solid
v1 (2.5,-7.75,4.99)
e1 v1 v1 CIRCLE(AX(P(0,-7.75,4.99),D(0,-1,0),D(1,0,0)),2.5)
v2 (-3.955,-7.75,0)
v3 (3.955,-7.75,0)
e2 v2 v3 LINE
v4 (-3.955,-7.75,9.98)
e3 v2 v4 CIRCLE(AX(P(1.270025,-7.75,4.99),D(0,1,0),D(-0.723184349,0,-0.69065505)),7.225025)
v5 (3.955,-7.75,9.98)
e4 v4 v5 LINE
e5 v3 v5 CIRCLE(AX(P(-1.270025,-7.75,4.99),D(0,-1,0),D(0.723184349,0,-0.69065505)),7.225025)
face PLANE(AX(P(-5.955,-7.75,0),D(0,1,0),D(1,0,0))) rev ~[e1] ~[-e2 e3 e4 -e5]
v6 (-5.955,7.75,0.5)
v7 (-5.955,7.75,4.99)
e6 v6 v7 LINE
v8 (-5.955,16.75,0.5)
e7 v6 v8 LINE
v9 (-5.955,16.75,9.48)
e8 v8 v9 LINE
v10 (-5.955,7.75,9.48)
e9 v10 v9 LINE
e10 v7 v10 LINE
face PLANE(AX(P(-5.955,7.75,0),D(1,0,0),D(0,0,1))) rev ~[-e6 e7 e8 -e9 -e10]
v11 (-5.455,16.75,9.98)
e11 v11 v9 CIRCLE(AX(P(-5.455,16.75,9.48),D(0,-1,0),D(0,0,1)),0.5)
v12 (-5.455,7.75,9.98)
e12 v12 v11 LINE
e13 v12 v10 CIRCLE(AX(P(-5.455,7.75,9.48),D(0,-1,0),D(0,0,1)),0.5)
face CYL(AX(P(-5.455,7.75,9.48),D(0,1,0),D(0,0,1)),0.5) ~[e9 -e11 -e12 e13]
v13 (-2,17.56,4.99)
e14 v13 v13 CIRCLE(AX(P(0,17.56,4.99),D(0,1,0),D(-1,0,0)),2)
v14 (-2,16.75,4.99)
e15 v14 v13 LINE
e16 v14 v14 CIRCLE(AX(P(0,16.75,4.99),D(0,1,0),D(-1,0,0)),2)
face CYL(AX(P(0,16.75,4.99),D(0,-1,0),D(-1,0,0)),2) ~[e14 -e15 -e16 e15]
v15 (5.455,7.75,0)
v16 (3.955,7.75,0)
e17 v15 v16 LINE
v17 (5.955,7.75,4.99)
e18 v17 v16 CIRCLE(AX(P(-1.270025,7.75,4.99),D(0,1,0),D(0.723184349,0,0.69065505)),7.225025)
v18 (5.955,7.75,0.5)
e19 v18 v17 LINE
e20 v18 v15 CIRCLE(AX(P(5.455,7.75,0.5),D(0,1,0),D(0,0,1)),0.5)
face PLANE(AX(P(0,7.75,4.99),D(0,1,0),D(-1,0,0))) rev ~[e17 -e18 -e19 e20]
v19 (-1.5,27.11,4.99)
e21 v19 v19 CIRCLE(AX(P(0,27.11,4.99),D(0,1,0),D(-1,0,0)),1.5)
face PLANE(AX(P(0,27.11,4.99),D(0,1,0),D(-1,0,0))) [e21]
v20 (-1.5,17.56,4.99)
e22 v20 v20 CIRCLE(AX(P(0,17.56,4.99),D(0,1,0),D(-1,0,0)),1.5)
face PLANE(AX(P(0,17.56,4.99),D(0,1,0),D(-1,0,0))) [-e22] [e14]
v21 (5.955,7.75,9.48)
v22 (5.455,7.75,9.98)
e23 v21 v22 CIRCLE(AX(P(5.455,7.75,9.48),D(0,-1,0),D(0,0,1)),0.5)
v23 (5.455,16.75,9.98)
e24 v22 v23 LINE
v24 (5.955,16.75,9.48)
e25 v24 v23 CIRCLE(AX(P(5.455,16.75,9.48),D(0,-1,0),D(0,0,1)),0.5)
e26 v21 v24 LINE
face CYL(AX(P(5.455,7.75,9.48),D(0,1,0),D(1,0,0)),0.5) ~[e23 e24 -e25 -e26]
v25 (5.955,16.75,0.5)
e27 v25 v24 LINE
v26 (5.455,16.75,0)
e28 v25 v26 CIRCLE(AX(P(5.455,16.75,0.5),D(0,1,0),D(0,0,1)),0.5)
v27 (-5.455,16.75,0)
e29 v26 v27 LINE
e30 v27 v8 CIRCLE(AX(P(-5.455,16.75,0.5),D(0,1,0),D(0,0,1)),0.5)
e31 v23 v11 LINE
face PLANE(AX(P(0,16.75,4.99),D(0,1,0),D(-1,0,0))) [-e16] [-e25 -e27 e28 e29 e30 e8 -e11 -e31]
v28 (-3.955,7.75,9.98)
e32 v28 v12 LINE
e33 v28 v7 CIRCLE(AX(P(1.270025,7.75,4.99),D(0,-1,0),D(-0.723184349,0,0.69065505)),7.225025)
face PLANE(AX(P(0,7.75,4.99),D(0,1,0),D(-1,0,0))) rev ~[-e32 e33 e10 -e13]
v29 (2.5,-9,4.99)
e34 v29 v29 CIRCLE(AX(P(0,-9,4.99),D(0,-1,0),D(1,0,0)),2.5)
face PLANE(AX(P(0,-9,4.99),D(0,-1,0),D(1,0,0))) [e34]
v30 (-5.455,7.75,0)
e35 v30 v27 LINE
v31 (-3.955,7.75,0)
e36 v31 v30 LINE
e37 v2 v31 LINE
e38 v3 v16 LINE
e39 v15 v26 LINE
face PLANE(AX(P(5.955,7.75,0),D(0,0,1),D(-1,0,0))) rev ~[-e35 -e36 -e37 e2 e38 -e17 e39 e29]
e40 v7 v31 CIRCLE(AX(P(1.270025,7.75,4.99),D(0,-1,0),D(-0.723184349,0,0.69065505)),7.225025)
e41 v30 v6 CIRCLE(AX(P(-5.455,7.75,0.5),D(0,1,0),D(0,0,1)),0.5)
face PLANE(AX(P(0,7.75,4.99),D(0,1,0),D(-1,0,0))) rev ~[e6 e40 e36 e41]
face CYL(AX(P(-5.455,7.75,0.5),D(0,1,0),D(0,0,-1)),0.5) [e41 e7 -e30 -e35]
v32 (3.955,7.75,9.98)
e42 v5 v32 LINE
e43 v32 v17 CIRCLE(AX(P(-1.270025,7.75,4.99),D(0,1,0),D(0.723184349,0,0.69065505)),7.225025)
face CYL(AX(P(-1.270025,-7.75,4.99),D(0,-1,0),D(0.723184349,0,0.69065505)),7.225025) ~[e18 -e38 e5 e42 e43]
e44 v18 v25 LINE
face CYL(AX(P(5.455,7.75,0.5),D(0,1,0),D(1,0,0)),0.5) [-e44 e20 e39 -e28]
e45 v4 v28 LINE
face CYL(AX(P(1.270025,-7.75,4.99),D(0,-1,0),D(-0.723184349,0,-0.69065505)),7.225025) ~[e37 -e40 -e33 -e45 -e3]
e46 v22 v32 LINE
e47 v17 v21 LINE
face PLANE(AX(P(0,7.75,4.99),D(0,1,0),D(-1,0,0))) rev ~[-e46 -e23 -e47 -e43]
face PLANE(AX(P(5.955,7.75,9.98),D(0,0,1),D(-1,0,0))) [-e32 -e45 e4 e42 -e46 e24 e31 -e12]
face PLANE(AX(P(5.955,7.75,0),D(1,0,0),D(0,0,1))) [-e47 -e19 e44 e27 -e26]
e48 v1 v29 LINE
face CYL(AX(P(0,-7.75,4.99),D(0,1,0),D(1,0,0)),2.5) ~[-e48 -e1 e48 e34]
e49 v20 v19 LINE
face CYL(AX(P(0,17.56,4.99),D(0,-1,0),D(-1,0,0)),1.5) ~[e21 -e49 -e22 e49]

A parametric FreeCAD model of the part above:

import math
import FreeCAD as App
import Part
import Sketcher
Q = App.Units.Quantity


def edges_at(feature, points):
    """Names of the edges that pass closest to the given points."""
    edges = feature.Shape.Edges
    near = lambda p: min(range(len(edges)), key=lambda i: edges[i].distToShape(Part.Vertex(*p))[0])
    return sorted({f"Edge{near(p) + 1}" for p in points})


def add_polygon(sketch, points):
    """Adds a closed chain of lines whose ends are joined by coincident constraints."""
    first, n = sketch.GeometryCount, len(points)
    for a, b in zip(points, points[1:] + points[:1]):
        sketch.addGeometry(Part.LineSegment(App.Vector(*a, 0), App.Vector(*b, 0)), False)
    for i in range(n):
        sketch.addConstraint(Sketcher.Constraint("Coincident", first + i, 2, first + (i + 1) % n, 1))

doc = App.newDocument("Part")
params = doc.addObject("Spreadsheet::Sheet", "Params")
for row, (alias, value) in enumerate([
    ("sketch1_height", "15.5 mm"),
    ("sketch1_width", "11.91 mm"),
    ("pad1_length", "9.98 mm"),
    ("sketch2_height", "9.98 mm"),
    ("pocket1_length", "25.4 mm"),
    ("sketch3_diameter", "5 mm"),
    ("pad2_length", "1.25 mm"),
    ("sketch4_width", "11.91 mm"),
    ("sketch4_height", "9.98 mm"),
    ("pad3_length", "9 mm"),
    ("sketch5_diameter", "4 mm"),
    ("pad4_length", "0.81 mm"),
    ("sketch6_diameter", "3 mm"),
    ("pad5_length", "9.55 mm"),
    ("fillet_radius", "0.5 mm"),
], start=1):
    params.set(f"A{row}", alias)
    params.set(f"B{row}", "=" + value)
    params.setAlias(f"B{row}", alias)

body = doc.addObject("PartDesign::Body", "Body")

sketch1 = body.newObject("Sketcher::SketchObject", "Sketch")
sketch1.AttachmentSupport = (doc.getObject("XY_Plane"), [""])
sketch1.MapMode = "FlatFace"
add_polygon(sketch1, [(-6, 8), (-6, -8), (6, -8), (6, 8)])
sketch1.addConstraint([
    Sketcher.Constraint("Vertical", 0),
    Sketcher.Constraint("Horizontal", 1),
    Sketcher.Constraint("Vertical", 2),
    Sketcher.Constraint("Horizontal", 3),
    Sketcher.Constraint("Symmetric", 0, 2, 2, 2, -1, 1),
    Sketcher.Constraint("DistanceY", 0, 2, 0, 1, Q("15.5 mm")),
    Sketcher.Constraint("DistanceX", 1, 1, 1, 2, Q("11.91 mm")),
])
sketch1.setExpression("Constraints[9]", "Params.sketch1_height")
sketch1.setExpression("Constraints[10]", "Params.sketch1_width")
pad1 = body.newObject("PartDesign::Pad", "Pad")
pad1.Profile = sketch1
pad1.setExpression("Length", "Params.pad1_length")

sketch2 = body.newObject("Sketcher::SketchObject", "Sketch001")
sketch2.AttachmentSupport = (doc.getObject("XZ_Plane"), [""])
sketch2.MapMode = "FlatFace"
sketch2.AttachmentOffset = App.Placement(App.Vector(0, 0, 7.75), App.Rotation())
sketch2.addGeometry([
    Part.ArcOfCircle(Part.Circle(App.Vector(1.3, 5, 0), App.Vector(0, 0, 1), 7.2), math.radians(136), math.radians(224)),
    Part.LineSegment(App.Vector(-4, 10, 0), App.Vector(-7.1, 10, 0)),
    Part.LineSegment(App.Vector(-7.1, 10, 0), App.Vector(-7.1, 0, 0)),
    Part.LineSegment(App.Vector(-7.1, 0, 0), App.Vector(-4, 0, 0)),
    Part.LineSegment(App.Vector(7.1, 10, 0), App.Vector(4, 10, 0)),
    Part.ArcOfCircle(Part.Circle(App.Vector(-1.3, 5, 0), App.Vector(0, 0, 1), 7.2), math.radians(-44), math.radians(44)),
    Part.LineSegment(App.Vector(4, 0, 0), App.Vector(7.1, 0, 0)),
    Part.LineSegment(App.Vector(7.1, 0, 0), App.Vector(7.1, 10, 0)),
], False)
sketch2.addConstraint([
    Sketcher.Constraint("Coincident", 0, 1, 1, 1),
    Sketcher.Constraint("Coincident", 1, 2, 2, 1),
    Sketcher.Constraint("Coincident", 2, 2, 3, 1),
    Sketcher.Constraint("Coincident", 3, 2, 0, 2),
    Sketcher.Constraint("Coincident", 4, 2, 5, 2),
    Sketcher.Constraint("Coincident", 5, 1, 6, 1),
    Sketcher.Constraint("Coincident", 6, 2, 7, 1),
    Sketcher.Constraint("Coincident", 7, 2, 4, 1),
    Sketcher.Constraint("Horizontal", 1),
    Sketcher.Constraint("Vertical", 2),
    Sketcher.Constraint("Horizontal", 3),
    Sketcher.Constraint("Horizontal", 4),
    Sketcher.Constraint("Horizontal", 6),
    Sketcher.Constraint("Vertical", 7),
    Sketcher.Constraint("Equal", 0, 5),
    Sketcher.Constraint("Symmetric", 3, 2, 5, 1, -1, 1),
    Sketcher.Constraint("Symmetric", 0, 3, 5, 3, -2),
    Sketcher.Constraint("Symmetric", 1, 2, 7, 2, -2),
    Sketcher.Constraint("Vertical", 0, 1, 3, 2),
    Sketcher.Constraint("DistanceY", 2, 2, 2, 1, Q("9.98 mm")),
    Sketcher.Constraint("DistanceX", 1, 2, 1, 1, Q("3.175 mm")),
    Sketcher.Constraint("DistanceX", 1, 2, -1, 1, Q("7.13 mm")),
    Sketcher.Constraint("Radius", 0, Q("7.225025 mm")),
])
sketch2.setExpression("Constraints[19]", "Params.sketch2_height")
pocket1 = body.newObject("PartDesign::Pocket", "Pocket")
pocket1.Profile = sketch2
pocket1.setExpression("Length", "Params.pocket1_length")

sketch3 = body.newObject("Sketcher::SketchObject", "Sketch002")
sketch3.AttachmentSupport = (doc.getObject("XZ_Plane"), [""])
sketch3.MapMode = "FlatFace"
sketch3.AttachmentOffset = App.Placement(App.Vector(0, 0, 7.75), App.Rotation())
sketch3.addGeometry(Part.Circle(App.Vector(0, 5, 0), App.Vector(0, 0, 1), 2.5), False)
sketch3.addConstraint([
    Sketcher.Constraint("PointOnObject", 0, 3, -2),
    Sketcher.Constraint("Diameter", 0, Q("5 mm")),
    Sketcher.Constraint("DistanceY", -1, 1, 0, 3, Q("4.99 mm")),
])
sketch3.setExpression("Constraints[1]", "Params.sketch3_diameter")
pad2 = body.newObject("PartDesign::Pad", "Pad001")
pad2.Profile = sketch3
pad2.setExpression("Length", "Params.pad2_length")

sketch4 = body.newObject("Sketcher::SketchObject", "Sketch003")
sketch4.AttachmentSupport = (doc.getObject("XZ_Plane"), [""])
sketch4.MapMode = "FlatFace"
sketch4.AttachmentOffset = App.Placement(App.Vector(0, 0, -7.75), App.Rotation())
add_polygon(sketch4, [(6, 10), (6, 0), (-6, 0), (-6, 10)])
sketch4.addConstraint([
    Sketcher.Constraint("Vertical", 0),
    Sketcher.Constraint("Horizontal", 1),
    Sketcher.Constraint("Vertical", 2),
    Sketcher.Constraint("Horizontal", 3),
    Sketcher.Constraint("Symmetric", 0, 2, 1, 2, -1, 1),
    Sketcher.Constraint("DistanceX", 1, 2, 1, 1, Q("11.91 mm")),
    Sketcher.Constraint("DistanceY", 0, 2, 0, 1, Q("9.98 mm")),
])
sketch4.setExpression("Constraints[9]", "Params.sketch4_width")
sketch4.setExpression("Constraints[10]", "Params.sketch4_height")
pad3 = body.newObject("PartDesign::Pad", "Pad002")
pad3.Profile = sketch4
pad3.setExpression("Length", "Params.pad3_length")
pad3.Reversed = True

sketch5 = body.newObject("Sketcher::SketchObject", "Sketch004")
sketch5.AttachmentSupport = (doc.getObject("XZ_Plane"), [""])
sketch5.MapMode = "FlatFace"
sketch5.AttachmentOffset = App.Placement(App.Vector(0, 0, -16.75), App.Rotation())
sketch5.addGeometry(Part.Circle(App.Vector(0, 5, 0), App.Vector(0, 0, 1), 2), False)
sketch5.addConstraint([
    Sketcher.Constraint("PointOnObject", 0, 3, -2),
    Sketcher.Constraint("Diameter", 0, Q("4 mm")),
    Sketcher.Constraint("DistanceY", -1, 1, 0, 3, Q("4.99 mm")),
])
sketch5.setExpression("Constraints[1]", "Params.sketch5_diameter")
pad4 = body.newObject("PartDesign::Pad", "Pad003")
pad4.Profile = sketch5
pad4.setExpression("Length", "Params.pad4_length")
pad4.Reversed = True

sketch6 = body.newObject("Sketcher::SketchObject", "Sketch005")
sketch6.AttachmentSupport = (doc.getObject("XZ_Plane"), [""])
sketch6.MapMode = "FlatFace"
sketch6.AttachmentOffset = App.Placement(App.Vector(0, 0, -17.56), App.Rotation())
sketch6.addGeometry(Part.Circle(App.Vector(0, 5, 0), App.Vector(0, 0, 1), 1.5), False)
sketch6.addConstraint([
    Sketcher.Constraint("PointOnObject", 0, 3, -2),
    Sketcher.Constraint("Diameter", 0, Q("3 mm")),
    Sketcher.Constraint("DistanceY", -1, 1, 0, 3, Q("4.99 mm")),
])
sketch6.setExpression("Constraints[1]", "Params.sketch6_diameter")
pad5 = body.newObject("PartDesign::Pad", "Pad004")
pad5.Profile = sketch6
pad5.setExpression("Length", "Params.pad5_length")
pad5.Reversed = True
doc.recompute()

fillet = body.newObject("PartDesign::Fillet", "Fillet")
fillet.Base = (pad5, edges_at(pad5, [
    (5.955, 12.25, 9.98),
    (-5.955, 12.25, 9.98),
    (5.955, 12.25, 0),
    (-5.955, 12.25, 0),
]))
fillet.setExpression("Radius", "Params.fillet_radius")

doc.recompute()
